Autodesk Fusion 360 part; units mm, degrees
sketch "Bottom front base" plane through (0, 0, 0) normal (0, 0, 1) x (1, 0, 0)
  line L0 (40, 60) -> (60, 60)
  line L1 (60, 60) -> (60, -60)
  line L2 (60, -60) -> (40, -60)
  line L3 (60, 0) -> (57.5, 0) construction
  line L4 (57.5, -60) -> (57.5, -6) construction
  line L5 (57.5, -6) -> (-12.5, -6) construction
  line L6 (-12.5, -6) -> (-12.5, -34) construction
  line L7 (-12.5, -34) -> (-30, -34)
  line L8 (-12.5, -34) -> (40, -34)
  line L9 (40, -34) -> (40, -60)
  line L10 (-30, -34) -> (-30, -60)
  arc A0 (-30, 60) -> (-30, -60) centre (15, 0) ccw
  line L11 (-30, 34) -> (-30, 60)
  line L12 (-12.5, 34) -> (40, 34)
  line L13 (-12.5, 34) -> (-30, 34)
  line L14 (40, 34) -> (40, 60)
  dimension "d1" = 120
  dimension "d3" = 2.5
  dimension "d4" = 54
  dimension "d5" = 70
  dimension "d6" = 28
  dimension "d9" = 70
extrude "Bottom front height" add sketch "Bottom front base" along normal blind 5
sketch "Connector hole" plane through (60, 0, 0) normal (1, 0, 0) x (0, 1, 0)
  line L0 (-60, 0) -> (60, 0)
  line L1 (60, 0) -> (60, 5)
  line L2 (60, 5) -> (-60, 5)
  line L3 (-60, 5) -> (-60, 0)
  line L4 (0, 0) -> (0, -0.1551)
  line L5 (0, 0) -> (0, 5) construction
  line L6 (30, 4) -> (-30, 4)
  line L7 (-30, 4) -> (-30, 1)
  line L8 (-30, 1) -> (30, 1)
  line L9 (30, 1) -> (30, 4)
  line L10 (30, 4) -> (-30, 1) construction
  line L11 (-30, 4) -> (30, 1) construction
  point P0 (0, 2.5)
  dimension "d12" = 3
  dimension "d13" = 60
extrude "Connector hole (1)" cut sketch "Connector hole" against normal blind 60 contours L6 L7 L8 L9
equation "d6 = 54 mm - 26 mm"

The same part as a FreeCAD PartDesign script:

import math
import FreeCAD as App
import Part
import Sketcher
from FreeCAD import Vector


def add_polygon(sketch, points):
    """Adds a closed chain of lines whose ends are joined by coincident constraints."""
    first, n = sketch.GeometryCount, len(points)
    for a, b in zip(points, points[1:] + points[:1]):
        sketch.addGeometry(Part.LineSegment(App.Vector(*a, 0), App.Vector(*b, 0)), False)
    for i in range(n):
        sketch.addConstraint(Sketcher.Constraint("Coincident", first + i, 2, first + (i + 1) % n, 1))

doc = App.newDocument("Part")
body = doc.addObject("PartDesign::Body", "Body")

# Sketch on XY plane
sketch1 = doc.addObject("Sketcher::SketchObject", "Sketch")
body.addObject(sketch1)
sketch1.AttachmentSupport = (doc.XY_Plane, [""])
sketch1.MapMode = "FlatFace"
sketch1.addGeometry(Part.LineSegment(Vector(60, 60, 0), Vector(40, 60, 0)), False)
sketch1.addGeometry(Part.LineSegment(Vector(40, 60, 0), Vector(40, 34, 0)), False)
sketch1.addGeometry(Part.LineSegment(Vector(40, 34, 0), Vector(-30, 34, 0)), False)
sketch1.addGeometry(Part.LineSegment(Vector(-30, 34, 0), Vector(-30, 60, 0)), False)
sketch1.addGeometry(Part.ArcOfCircle(Part.Circle(Vector(15, 0, 0), Vector(0, 0, 1), 75), math.radians(127), math.radians(233)), False)
sketch1.addGeometry(Part.LineSegment(Vector(-30, -60, 0), Vector(-30, -34, 0)), False)
sketch1.addGeometry(Part.LineSegment(Vector(-30, -34, 0), Vector(40, -34, 0)), False)
sketch1.addGeometry(Part.LineSegment(Vector(40, -34, 0), Vector(40, -60, 0)), False)
sketch1.addGeometry(Part.LineSegment(Vector(40, -60, 0), Vector(60, -60, 0)), False)
sketch1.addGeometry(Part.LineSegment(Vector(60, -60, 0), Vector(60, 60, 0)), False)
sketch1.addConstraint(Sketcher.Constraint("Coincident", 0, 2, 1, 1))
sketch1.addConstraint(Sketcher.Constraint("Coincident", 1, 2, 2, 1))
sketch1.addConstraint(Sketcher.Constraint("Coincident", 2, 2, 3, 1))
sketch1.addConstraint(Sketcher.Constraint("Coincident", 3, 2, 4, 1))
sketch1.addConstraint(Sketcher.Constraint("Coincident", 4, 2, 5, 1))
sketch1.addConstraint(Sketcher.Constraint("Coincident", 5, 2, 6, 1))
sketch1.addConstraint(Sketcher.Constraint("Coincident", 6, 2, 7, 1))
sketch1.addConstraint(Sketcher.Constraint("Coincident", 7, 2, 8, 1))
sketch1.addConstraint(Sketcher.Constraint("Coincident", 8, 2, 9, 1))
sketch1.addConstraint(Sketcher.Constraint("Coincident", 9, 2, 0, 1))
sketch1.addConstraint(Sketcher.Constraint("Horizontal", 0))
sketch1.addConstraint(Sketcher.Constraint("Vertical", 1))
sketch1.addConstraint(Sketcher.Constraint("Horizontal", 2))
sketch1.addConstraint(Sketcher.Constraint("Vertical", 3))
sketch1.addConstraint(Sketcher.Constraint("Vertical", 5))
sketch1.addConstraint(Sketcher.Constraint("Horizontal", 6))
sketch1.addConstraint(Sketcher.Constraint("Vertical", 7))
sketch1.addConstraint(Sketcher.Constraint("Horizontal", 8))
sketch1.addConstraint(Sketcher.Constraint("Vertical", 9))
sketch1.addConstraint(Sketcher.Constraint("Symmetric", 3, 2, 4, 2, -1))
sketch1.addConstraint(Sketcher.Constraint("Symmetric", 1, 2, 6, 2, -1))
sketch1.addConstraint(Sketcher.Constraint("Horizontal", 0, 2, 3, 2))
sketch1.addConstraint(Sketcher.Constraint("Horizontal", 4, 2, 7, 2))
sketch1.addConstraint(Sketcher.Constraint("DistanceX", 2, 2, 2, 1, 70.0))
sketch1.addConstraint(Sketcher.Constraint("DistanceY", 9, 1, 9, 2, 120.0))
sketch1.addConstraint(Sketcher.Constraint("Radius", 4, 75.0))
sketch1.addConstraint(Sketcher.Constraint("DistanceX", 0, 2, 0, 1, 20.0))
sketch1.addConstraint(Sketcher.Constraint("DistanceY", 1, 2, 1, 1, 26.0))
sketch1.addConstraint(Sketcher.Constraint("DistanceX", -1, 1, 4, 3, 15.0))
pad1 = doc.addObject("PartDesign::Pad", "Pad")
body.addObject(pad1)
pad1.Profile = sketch1
pad1.Length = 5

# Sketch on YZ plane
sketch2 = doc.addObject("Sketcher::SketchObject", "Sketch001")
body.addObject(sketch2)
sketch2.AttachmentSupport = (doc.YZ_Plane, [""])
sketch2.MapMode = "FlatFace"
sketch2.AttachmentOffset = App.Placement(Vector(0, 0, 60), App.Rotation())
add_polygon(sketch2, [(30, 1), (30, 4), (-30, 4), (-30, 1)])  # lines 0-3
sketch2.addConstraint(Sketcher.Constraint("Vertical", 0))
sketch2.addConstraint(Sketcher.Constraint("Horizontal", 1))
sketch2.addConstraint(Sketcher.Constraint("Vertical", 2))
sketch2.addConstraint(Sketcher.Constraint("Horizontal", 3))
sketch2.addConstraint(Sketcher.Constraint("DistanceX", 1, 2, 1, 1, 60.0))
sketch2.addConstraint(Sketcher.Constraint("DistanceY", 0, 1, 0, 2, 3.0))
sketch2.addConstraint(Sketcher.Constraint("DistanceX", -1, 1, 0, 2, 30.0))
sketch2.addConstraint(Sketcher.Constraint("DistanceY", -1, 1, 0, 2, 4.0))
pocket1 = doc.addObject("PartDesign::Pocket", "Pocket")
body.addObject(pocket1)
pocket1.Profile = sketch2
pocket1.Length = 60

doc.recompute()
